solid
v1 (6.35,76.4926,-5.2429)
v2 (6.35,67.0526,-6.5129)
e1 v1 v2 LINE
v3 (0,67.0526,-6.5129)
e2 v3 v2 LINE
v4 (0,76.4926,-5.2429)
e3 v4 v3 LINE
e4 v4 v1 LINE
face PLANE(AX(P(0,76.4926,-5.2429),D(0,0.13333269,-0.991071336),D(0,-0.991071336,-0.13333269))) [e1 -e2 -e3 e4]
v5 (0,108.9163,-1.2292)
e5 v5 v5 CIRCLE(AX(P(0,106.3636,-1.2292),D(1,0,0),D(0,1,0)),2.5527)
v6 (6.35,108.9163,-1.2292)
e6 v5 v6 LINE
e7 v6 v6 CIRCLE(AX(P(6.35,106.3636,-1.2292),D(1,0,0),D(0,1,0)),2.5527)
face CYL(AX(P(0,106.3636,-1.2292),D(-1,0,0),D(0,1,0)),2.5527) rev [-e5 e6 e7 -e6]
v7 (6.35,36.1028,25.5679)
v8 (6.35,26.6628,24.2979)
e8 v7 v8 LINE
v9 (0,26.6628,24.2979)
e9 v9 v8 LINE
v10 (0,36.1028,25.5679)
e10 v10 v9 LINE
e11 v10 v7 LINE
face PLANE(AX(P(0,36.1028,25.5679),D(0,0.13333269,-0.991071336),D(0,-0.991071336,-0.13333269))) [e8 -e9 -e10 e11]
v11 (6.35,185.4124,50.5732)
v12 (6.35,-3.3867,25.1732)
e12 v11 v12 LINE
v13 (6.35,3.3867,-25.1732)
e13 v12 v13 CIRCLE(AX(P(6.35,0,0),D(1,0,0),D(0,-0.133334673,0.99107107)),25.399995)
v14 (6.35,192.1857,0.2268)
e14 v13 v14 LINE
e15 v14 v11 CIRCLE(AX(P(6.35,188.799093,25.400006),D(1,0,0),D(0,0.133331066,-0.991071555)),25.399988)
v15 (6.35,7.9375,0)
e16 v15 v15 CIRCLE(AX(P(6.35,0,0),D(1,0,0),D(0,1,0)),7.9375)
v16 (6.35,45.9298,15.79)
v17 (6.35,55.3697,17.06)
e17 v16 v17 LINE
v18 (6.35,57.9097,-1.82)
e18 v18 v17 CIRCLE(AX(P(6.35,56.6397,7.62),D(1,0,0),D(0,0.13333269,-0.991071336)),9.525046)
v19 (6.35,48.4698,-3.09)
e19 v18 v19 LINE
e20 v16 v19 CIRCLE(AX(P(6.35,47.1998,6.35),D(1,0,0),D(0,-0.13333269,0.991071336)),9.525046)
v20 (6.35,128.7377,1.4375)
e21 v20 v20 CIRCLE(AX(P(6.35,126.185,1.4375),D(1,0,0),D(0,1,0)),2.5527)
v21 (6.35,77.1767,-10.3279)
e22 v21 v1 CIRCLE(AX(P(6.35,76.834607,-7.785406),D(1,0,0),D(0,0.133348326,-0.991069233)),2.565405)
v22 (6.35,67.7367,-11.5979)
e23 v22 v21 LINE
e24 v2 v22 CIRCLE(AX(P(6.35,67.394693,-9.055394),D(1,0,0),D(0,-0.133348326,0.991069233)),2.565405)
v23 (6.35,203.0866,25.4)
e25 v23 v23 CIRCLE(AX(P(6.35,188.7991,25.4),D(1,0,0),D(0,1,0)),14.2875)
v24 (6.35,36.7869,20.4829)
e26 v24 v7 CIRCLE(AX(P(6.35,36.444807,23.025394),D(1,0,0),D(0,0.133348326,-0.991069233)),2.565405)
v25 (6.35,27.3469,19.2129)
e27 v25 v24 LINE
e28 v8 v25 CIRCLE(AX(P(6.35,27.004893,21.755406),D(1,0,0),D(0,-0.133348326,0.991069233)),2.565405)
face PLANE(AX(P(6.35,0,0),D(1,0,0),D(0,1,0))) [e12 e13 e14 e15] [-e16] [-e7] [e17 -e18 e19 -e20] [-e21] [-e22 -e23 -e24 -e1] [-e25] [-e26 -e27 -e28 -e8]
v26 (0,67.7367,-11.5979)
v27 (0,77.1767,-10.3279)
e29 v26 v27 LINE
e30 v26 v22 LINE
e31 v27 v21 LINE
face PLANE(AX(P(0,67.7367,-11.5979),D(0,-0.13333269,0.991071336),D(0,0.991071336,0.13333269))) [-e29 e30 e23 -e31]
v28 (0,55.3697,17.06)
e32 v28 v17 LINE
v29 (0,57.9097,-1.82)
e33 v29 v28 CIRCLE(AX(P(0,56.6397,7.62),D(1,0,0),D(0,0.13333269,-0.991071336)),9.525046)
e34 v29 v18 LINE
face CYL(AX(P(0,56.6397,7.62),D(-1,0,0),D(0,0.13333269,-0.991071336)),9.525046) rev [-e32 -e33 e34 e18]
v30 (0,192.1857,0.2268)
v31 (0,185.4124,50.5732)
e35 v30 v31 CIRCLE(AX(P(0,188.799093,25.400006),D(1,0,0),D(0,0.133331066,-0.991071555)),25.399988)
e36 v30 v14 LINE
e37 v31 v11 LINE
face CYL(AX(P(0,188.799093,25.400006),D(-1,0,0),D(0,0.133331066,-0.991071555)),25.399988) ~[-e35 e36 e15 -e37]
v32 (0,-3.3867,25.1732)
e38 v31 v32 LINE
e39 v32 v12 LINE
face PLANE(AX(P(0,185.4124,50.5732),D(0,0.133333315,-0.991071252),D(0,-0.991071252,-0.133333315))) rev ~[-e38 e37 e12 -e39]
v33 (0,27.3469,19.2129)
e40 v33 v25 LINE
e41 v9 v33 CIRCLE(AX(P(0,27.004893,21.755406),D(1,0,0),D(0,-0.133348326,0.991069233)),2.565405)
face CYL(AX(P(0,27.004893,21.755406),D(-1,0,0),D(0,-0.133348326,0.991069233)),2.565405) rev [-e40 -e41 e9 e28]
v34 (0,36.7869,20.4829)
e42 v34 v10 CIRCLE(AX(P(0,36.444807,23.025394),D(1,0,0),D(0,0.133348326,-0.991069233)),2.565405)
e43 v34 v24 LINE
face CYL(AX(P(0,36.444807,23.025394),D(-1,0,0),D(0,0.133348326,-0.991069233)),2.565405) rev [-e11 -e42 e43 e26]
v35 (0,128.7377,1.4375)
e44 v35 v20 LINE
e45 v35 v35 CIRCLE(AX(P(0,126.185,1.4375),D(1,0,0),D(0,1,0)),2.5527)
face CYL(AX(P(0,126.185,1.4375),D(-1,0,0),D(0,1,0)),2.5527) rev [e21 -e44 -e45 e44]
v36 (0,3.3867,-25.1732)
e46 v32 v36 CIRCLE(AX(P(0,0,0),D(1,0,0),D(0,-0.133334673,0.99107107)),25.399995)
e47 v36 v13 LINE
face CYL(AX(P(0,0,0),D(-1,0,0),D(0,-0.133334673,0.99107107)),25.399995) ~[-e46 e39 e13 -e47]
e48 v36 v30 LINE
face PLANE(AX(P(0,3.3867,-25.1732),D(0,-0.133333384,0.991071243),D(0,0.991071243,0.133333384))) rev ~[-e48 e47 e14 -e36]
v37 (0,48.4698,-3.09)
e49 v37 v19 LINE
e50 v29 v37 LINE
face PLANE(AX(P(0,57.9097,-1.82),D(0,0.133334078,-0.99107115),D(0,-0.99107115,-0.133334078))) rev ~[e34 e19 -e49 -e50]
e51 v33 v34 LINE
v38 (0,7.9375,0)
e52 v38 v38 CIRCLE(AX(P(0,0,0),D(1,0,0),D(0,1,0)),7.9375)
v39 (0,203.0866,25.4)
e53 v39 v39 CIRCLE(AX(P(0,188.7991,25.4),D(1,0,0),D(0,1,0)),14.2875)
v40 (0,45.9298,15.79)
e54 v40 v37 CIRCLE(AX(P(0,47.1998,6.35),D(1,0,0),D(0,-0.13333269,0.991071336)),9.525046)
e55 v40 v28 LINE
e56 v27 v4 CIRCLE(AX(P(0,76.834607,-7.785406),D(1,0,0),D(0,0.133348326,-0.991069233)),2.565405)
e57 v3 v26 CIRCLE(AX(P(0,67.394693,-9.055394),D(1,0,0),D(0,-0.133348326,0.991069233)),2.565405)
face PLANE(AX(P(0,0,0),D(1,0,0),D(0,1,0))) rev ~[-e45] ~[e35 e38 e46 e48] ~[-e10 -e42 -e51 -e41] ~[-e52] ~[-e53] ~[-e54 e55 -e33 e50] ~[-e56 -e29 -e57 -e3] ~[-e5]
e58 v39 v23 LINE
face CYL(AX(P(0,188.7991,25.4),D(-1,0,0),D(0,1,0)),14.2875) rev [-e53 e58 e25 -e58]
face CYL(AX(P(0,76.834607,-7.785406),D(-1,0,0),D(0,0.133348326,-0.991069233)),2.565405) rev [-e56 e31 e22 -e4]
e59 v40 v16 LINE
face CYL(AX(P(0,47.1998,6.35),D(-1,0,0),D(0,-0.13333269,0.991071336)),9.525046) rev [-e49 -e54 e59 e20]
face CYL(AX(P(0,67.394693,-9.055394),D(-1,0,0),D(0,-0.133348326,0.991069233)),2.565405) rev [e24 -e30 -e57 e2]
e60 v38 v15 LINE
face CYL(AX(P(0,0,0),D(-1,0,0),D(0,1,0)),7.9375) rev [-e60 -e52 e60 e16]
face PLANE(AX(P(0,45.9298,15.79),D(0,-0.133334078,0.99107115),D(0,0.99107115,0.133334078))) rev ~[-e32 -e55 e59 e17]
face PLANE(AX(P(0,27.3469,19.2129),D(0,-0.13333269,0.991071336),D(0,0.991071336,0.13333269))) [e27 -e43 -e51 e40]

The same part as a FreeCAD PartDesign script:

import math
import FreeCAD as App
import Part
import Sketcher
from FreeCAD import Vector
Q = App.Units.Quantity

doc = App.newDocument("Part")
body = doc.addObject("PartDesign::Body", "Body")

sketch1 = body.newObject("Sketcher::SketchObject", "Sketch")
sketch1.AttachmentSupport = (doc.getObject("YZ_Plane"), [""])
sketch1.MapMode = "FlatFace"
sketch1.addGeometry([
    Part.LineSegment(Vector(185.4124, 50.5732, 0), Vector(-3.3867, 25.1732, 0)),
    Part.ArcOfCircle(Part.Circle(Vector(0, 0, 0), Vector(0, 0, 1), 25.399995), math.radians(97.662333), math.radians(277.662333)),
    Part.LineSegment(Vector(3.3867, -25.1732, 0), Vector(192.1857, 0.2268, 0)),
    Part.ArcOfCircle(Part.Circle(Vector(188.7991, 25.4, 0), Vector(0, 0, 1), 25.399981), math.radians(-82.33789), math.radians(97.662333)),
    Part.LineSegment(Vector(67.0526, -6.5129, 0), Vector(76.4926, -5.2429, 0)),
    Part.ArcOfCircle(Part.Circle(Vector(76.8346, -7.7854, 0), Vector(0, 0, 1), 2.565412), math.radians(-82.336729), math.radians(97.661058)),
    Part.LineSegment(Vector(77.1767, -10.3279, 0), Vector(67.7367, -11.5979, 0)),
    Part.ArcOfCircle(Part.Circle(Vector(67.3947, -9.0554, 0), Vector(0, 0, 1), 2.565412), math.radians(97.663271), math.radians(277.661058)),
    Part.Circle(Vector(0, 0, 0), Vector(0, 0, 1), 7.9375),
    Part.ArcOfCircle(Part.Circle(Vector(56.6397, 7.62, 0), Vector(0, 0, 1), 9.525046), math.radians(-82.337782), math.radians(97.662218)),
    Part.LineSegment(Vector(57.9097, -1.82, 0), Vector(48.4698, -3.09, 0)),
    Part.ArcOfCircle(Part.Circle(Vector(47.1998, 6.35, 0), Vector(0, 0, 1), 9.525046), math.radians(97.662218), math.radians(277.662218)),
    Part.LineSegment(Vector(45.9298, 15.79, 0), Vector(55.3697, 17.06, 0)),
    Part.Circle(Vector(106.3636, -1.2292, 0), Vector(0, 0, 1), 2.5527),
    Part.Circle(Vector(126.185, 1.4375, 0), Vector(0, 0, 1), 2.5527),
    Part.LineSegment(Vector(26.6628, 24.2979, 0), Vector(36.1028, 25.5679, 0)),
    Part.ArcOfCircle(Part.Circle(Vector(36.4448, 23.0254, 0), Vector(0, 0, 1), 2.565412), math.radians(-82.336729), math.radians(97.661058)),
    Part.LineSegment(Vector(36.7869, 20.4829, 0), Vector(27.3469, 19.2129, 0)),
    Part.ArcOfCircle(Part.Circle(Vector(27.0049, 21.7554, 0), Vector(0, 0, 1), 2.565412), math.radians(97.663271), math.radians(277.661058)),
    Part.Circle(Vector(188.7991, 25.4, 0), Vector(0, 0, 1), 14.2875),
], False)
sketch1.addConstraint([
    Sketcher.Constraint("Tangent", 0, 2, 1, 1),
    Sketcher.Constraint("Tangent", 1, 2, 2, 1),
    Sketcher.Constraint("Tangent", 2, 2, 3, 1),
    Sketcher.Constraint("Tangent", 3, 2, 0, 1),
    Sketcher.Constraint("Tangent", 4, 2, 5, 2),
    Sketcher.Constraint("Tangent", 5, 1, 6, 1),
    Sketcher.Constraint("Tangent", 6, 2, 7, 2),
    Sketcher.Constraint("Tangent", 7, 1, 4, 1),
    Sketcher.Constraint("Tangent", 9, 1, 10, 1),
    Sketcher.Constraint("Tangent", 10, 2, 11, 2),
    Sketcher.Constraint("Tangent", 11, 1, 12, 1),
    Sketcher.Constraint("Tangent", 12, 2, 9, 2),
    Sketcher.Constraint("Tangent", 15, 2, 16, 2),
    Sketcher.Constraint("Tangent", 16, 1, 17, 1),
    Sketcher.Constraint("Tangent", 17, 2, 18, 2),
    Sketcher.Constraint("Tangent", 18, 1, 15, 1),
    Sketcher.Constraint("Coincident", 1, 3, -1, 1),
    Sketcher.Constraint("Coincident", 8, 3, -1, 1),
    Sketcher.Constraint("Coincident", 19, 3, 3, 3),
    Sketcher.Constraint("Equal", 1, 3),
    Sketcher.Constraint("Equal", 5, 7),
    Sketcher.Constraint("Equal", 9, 11),
    Sketcher.Constraint("Equal", 13, 14),
    Sketcher.Constraint("Equal", 7, 16),
    Sketcher.Constraint("Equal", 16, 18),
    Sketcher.Constraint("Parallel", 2, 4),
    Sketcher.Constraint("Parallel", 6, 10),
    Sketcher.Constraint("Parallel", 12, 15),
    Sketcher.Constraint("Equal", 6, 10),
    Sketcher.Constraint("Equal", 12, 15),
    Sketcher.Constraint("Radius", 1, Q("1 in")),
    Sketcher.Constraint("Diameter", 8, Q("0.625 in")),
    Sketcher.Constraint("Diameter", 13, Q("0.201 in")),
    Sketcher.Constraint("Diameter", 19, Q("1.125 in")),
    Sketcher.Constraint("DistanceY", -1, 1, 3, 3, Q("1 in")),
    Sketcher.Constraint("Radius", 5, Q("0.101 in")),
    Sketcher.Constraint("Radius", 9, Q("0.375 in")),
    Sketcher.Constraint("DistanceY", -1, 1, 11, 3, Q("0.25 in")),
    Sketcher.Constraint("Distance", 4, Q("0.375 in")),
    Sketcher.Constraint("Distance", 0, Q("7.5 in")),
    Sketcher.Constraint("DistanceX", 9, 3, 3, 3, Q("5.203126 in")),
    Sketcher.Constraint("DistanceY", 13, 3, 14, 3, Q("0.105 in")),
    Sketcher.Constraint("DistanceX", 9, 3, 14, 3, Q("2.738 in")),
    Sketcher.Constraint("DistanceY", 5, 3, -1, 1, Q("0.3065 in")),
    Sketcher.Constraint("DistanceY", 13, 3, -1, 1, Q("0.0484 in")),
    Sketcher.Constraint("DistanceY", -1, 1, 16, 3, Q("0.9065 in")),
    Sketcher.Constraint("DistanceX", -1, 1, 6, 2, Q("2.6668 in")),
    Sketcher.Constraint("DistanceX", -1, 1, 16, 1, Q("1.4483 in")),
    Sketcher.Constraint("DistanceX", 7, 3, 13, 3, Q("1.5342 in")),
])
pad1 = body.newObject("PartDesign::Pad", "Pad")
pad1.Profile = sketch1
pad1.Length = Q("0.25 in")

doc.recompute()
